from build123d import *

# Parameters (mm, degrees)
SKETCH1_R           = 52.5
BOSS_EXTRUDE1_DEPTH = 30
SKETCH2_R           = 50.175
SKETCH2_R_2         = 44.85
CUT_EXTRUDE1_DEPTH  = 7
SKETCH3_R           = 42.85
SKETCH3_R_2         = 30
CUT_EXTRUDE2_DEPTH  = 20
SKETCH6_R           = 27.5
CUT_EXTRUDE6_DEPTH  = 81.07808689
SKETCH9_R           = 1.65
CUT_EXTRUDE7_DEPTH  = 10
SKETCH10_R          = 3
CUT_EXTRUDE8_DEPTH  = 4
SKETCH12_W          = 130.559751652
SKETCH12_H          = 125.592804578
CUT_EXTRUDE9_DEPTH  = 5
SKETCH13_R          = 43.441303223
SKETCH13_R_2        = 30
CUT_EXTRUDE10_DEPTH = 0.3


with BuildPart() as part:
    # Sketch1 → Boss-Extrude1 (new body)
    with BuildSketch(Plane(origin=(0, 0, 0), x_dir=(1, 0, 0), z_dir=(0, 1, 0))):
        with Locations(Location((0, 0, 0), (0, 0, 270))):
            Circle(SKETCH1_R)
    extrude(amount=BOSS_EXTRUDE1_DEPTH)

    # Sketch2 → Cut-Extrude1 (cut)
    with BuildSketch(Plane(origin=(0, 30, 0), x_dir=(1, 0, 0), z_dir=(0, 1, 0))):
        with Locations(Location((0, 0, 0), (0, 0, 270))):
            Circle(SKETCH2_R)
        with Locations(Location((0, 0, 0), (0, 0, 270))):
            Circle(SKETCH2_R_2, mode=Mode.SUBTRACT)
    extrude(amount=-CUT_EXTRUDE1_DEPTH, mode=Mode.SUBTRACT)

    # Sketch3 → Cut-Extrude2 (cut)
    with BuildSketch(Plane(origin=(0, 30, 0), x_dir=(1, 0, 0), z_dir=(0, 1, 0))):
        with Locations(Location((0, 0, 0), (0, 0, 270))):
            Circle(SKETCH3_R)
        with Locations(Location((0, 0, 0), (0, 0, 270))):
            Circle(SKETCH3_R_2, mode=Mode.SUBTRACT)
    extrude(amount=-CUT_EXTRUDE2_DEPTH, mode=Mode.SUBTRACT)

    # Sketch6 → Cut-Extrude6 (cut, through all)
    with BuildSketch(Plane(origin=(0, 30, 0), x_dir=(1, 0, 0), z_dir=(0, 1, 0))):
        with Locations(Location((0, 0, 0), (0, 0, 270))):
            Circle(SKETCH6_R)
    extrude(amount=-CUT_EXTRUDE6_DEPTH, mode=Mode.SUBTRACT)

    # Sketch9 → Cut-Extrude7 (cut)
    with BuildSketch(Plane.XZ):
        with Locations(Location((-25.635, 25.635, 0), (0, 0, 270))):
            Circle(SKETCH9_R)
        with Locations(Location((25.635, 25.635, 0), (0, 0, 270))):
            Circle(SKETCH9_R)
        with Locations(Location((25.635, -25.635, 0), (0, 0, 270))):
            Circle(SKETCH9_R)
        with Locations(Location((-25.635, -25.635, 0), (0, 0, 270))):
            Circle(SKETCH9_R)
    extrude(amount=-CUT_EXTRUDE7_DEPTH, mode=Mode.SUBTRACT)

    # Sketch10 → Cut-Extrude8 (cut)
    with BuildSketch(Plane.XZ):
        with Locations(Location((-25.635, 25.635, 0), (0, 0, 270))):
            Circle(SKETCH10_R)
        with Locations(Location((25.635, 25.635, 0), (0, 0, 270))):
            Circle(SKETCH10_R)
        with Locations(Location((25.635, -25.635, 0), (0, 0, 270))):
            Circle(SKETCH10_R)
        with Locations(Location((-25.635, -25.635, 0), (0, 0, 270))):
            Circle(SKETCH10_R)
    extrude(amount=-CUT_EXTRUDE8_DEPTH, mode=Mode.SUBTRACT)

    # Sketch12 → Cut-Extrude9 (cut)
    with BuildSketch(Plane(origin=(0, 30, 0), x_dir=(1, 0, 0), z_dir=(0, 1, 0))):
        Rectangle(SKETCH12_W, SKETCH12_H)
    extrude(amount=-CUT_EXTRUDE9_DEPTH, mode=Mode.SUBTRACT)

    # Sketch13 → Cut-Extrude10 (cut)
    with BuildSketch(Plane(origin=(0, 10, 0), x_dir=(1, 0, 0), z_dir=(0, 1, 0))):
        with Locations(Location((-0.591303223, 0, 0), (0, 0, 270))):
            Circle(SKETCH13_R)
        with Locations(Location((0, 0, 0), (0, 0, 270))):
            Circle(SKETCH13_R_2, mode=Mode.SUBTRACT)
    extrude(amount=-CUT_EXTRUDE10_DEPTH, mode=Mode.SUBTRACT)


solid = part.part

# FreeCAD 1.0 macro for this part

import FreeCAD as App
import Part
import Sketcher

V = App.Vector


def add_polygon(sketch, points):
    """Adds a closed chain of lines whose ends are joined by coincident constraints."""
    first, n = sketch.GeometryCount, len(points)
    for a, b in zip(points, points[1:] + points[:1]):
        sketch.addGeometry(Part.LineSegment(App.Vector(*a, 0), App.Vector(*b, 0)), False)
    for i in range(n):
        sketch.addConstraint(Sketcher.Constraint("Coincident", first + i, 2, first + (i + 1) % n, 1))

doc = App.newDocument("Part")
body = doc.addObject("PartDesign::Body", "Body")

# Sketch on XZ plane
sketch1 = body.newObject("Sketcher::SketchObject", "Sketch")
sketch1.AttachmentSupport = (doc.getObject("XZ_Plane"), [""])
sketch1.MapMode = "FlatFace"
sketch1.addGeometry(Part.Circle(V(0, 0, 0), V(0, 0, 1), 52), False)
sketch1.addConstraint([
    Sketcher.Constraint("Coincident", 0, 3, -1, 1),
    Sketcher.Constraint("Diameter", 0, 105.0),
])
pad1 = body.newObject("PartDesign::Pad", "Pad")
pad1.Profile = sketch1
pad1.Length = 30
pad1.Reversed = True

# Sketch on XZ plane
sketch2 = body.newObject("Sketcher::SketchObject", "Sketch001")
sketch2.AttachmentSupport = (doc.getObject("XZ_Plane"), [""])
sketch2.MapMode = "FlatFace"
sketch2.AttachmentOffset = App.Placement(V(0, 0, -30), App.Rotation())
sketch2.addGeometry([
    Part.Circle(V(0, 0, 0), V(0, 0, 1), 50),
    Part.Circle(V(0, 0, 0), V(0, 0, 1), 45),
], False)
sketch2.addConstraint([
    Sketcher.Constraint("Coincident", 0, 3, -1, 1),
    Sketcher.Constraint("Coincident", 1, 3, -1, 1),
    Sketcher.Constraint("Diameter", 1, 89.7),
    Sketcher.Constraint("Diameter", 0, 100.35),
])
pocket1 = body.newObject("PartDesign::Pocket", "Pocket")
pocket1.Profile = sketch2
pocket1.Length = 7
pocket1.Reversed = True

# Sketch on XZ plane
sketch3 = body.newObject("Sketcher::SketchObject", "Sketch002")
sketch3.AttachmentSupport = (doc.getObject("XZ_Plane"), [""])
sketch3.MapMode = "FlatFace"
sketch3.AttachmentOffset = App.Placement(V(0, 0, -30), App.Rotation())
sketch3.addGeometry([
    Part.Circle(V(0, 0, 0), V(0, 0, 1), 43),
    Part.Circle(V(0, 0, 0), V(0, 0, 1), 30),
], False)
sketch3.addConstraint([
    Sketcher.Constraint("Coincident", 0, 3, -1, 1),
    Sketcher.Constraint("Coincident", 1, 3, -1, 1),
    Sketcher.Constraint("Diameter", 1, 60.0),
    Sketcher.Constraint("Diameter", 0, 85.7),
])
pocket2 = body.newObject("PartDesign::Pocket", "Pocket001")
pocket2.Profile = sketch3
pocket2.Length = 20
pocket2.Reversed = True

# Sketch on XZ plane
sketch4 = body.newObject("Sketcher::SketchObject", "Sketch003")
sketch4.AttachmentSupport = (doc.getObject("XZ_Plane"), [""])
sketch4.MapMode = "FlatFace"
sketch4.AttachmentOffset = App.Placement(V(0, 0, -30), App.Rotation())
sketch4.addGeometry(Part.Circle(V(0, 0, 0), V(0, 0, 1), 28), False)
sketch4.addConstraint([
    Sketcher.Constraint("Coincident", 0, 3, -1, 1),
    Sketcher.Constraint("Diameter", 0, 55.0),
])
pocket3 = body.newObject("PartDesign::Pocket", "Pocket002")
pocket3.Profile = sketch4
pocket3.Type = "ThroughAll"
pocket3.Reversed = True

# Sketch on XZ plane
sketch5 = body.newObject("Sketcher::SketchObject", "Sketch004")
sketch5.AttachmentSupport = (doc.getObject("XZ_Plane"), [""])
sketch5.MapMode = "FlatFace"
sketch5.addGeometry([
    Part.Circle(V(-25.6, 25.6, 0), V(0, 0, 1), 1.6),
    Part.Circle(V(25.6, 25.6, 0), V(0, 0, 1), 1.6),
    Part.Circle(V(25.6, -25.6, 0), V(0, 0, 1), 1.6),
    Part.Circle(V(-25.6, -25.6, 0), V(0, 0, 1), 1.6),
], False)
sketch5.addConstraint([
    Sketcher.Constraint("Equal", 0, 1),
    Sketcher.Constraint("Equal", 1, 2),
    Sketcher.Constraint("Equal", 2, 3),
    Sketcher.Constraint("Symmetric", 0, 3, 2, 3, -1, 1),
    Sketcher.Constraint("Symmetric", 1, 3, 3, 3, -1, 1),
    Sketcher.Constraint("Symmetric", 0, 3, 1, 3, -2),
    Sketcher.Constraint("Diameter", 0, 3.3),
    Sketcher.Constraint("DistanceX", 0, 3, 1, 3, 51.27),
    Sketcher.Constraint("DistanceY", 2, 3, 1, 3, 51.27),
])
pocket4 = body.newObject("PartDesign::Pocket", "Pocket003")
pocket4.Profile = sketch5
pocket4.Length = 10

# Sketch on XZ plane
sketch6 = body.newObject("Sketcher::SketchObject", "Sketch005")
sketch6.AttachmentSupport = (doc.getObject("XZ_Plane"), [""])
sketch6.MapMode = "FlatFace"
sketch6.addGeometry([
    Part.Circle(V(-25.6, 25.6, 0), V(0, 0, 1), 3),
    Part.Circle(V(25.6, 25.6, 0), V(0, 0, 1), 3),
    Part.Circle(V(25.6, -25.6, 0), V(0, 0, 1), 3),
    Part.Circle(V(-25.6, -25.6, 0), V(0, 0, 1), 3),
], False)
sketch6.addConstraint([
    Sketcher.Constraint("Equal", 0, 1),
    Sketcher.Constraint("Equal", 1, 2),
    Sketcher.Constraint("Equal", 2, 3),
    Sketcher.Constraint("Symmetric", 0, 3, 2, 3, -1, 1),
    Sketcher.Constraint("Symmetric", 1, 3, 3, 3, -1, 1),
    Sketcher.Constraint("Symmetric", 0, 3, 1, 3, -2),
    Sketcher.Constraint("Diameter", 0, 6.0),
    Sketcher.Constraint("DistanceX", 0, 3, 1, 3, 51.27),
    Sketcher.Constraint("DistanceY", 2, 3, 1, 3, 51.27),
])
pocket5 = body.newObject("PartDesign::Pocket", "Pocket004")
pocket5.Profile = sketch6
pocket5.Length = 4

# Sketch on XZ plane
sketch7 = body.newObject("Sketcher::SketchObject", "Sketch006")
sketch7.AttachmentSupport = (doc.getObject("XZ_Plane"), [""])
sketch7.MapMode = "FlatFace"
sketch7.AttachmentOffset = App.Placement(V(0, 0, -30), App.Rotation())
add_polygon(sketch7, [(-65, -63), (-65, 63), (65, 63), (65, -63)])  # lines 0-3
sketch7.addConstraint([
    Sketcher.Constraint("Vertical", 0),
    Sketcher.Constraint("Horizontal", 1),
    Sketcher.Constraint("Vertical", 2),
    Sketcher.Constraint("Horizontal", 3),
    Sketcher.Constraint("Symmetric", 0, 2, 2, 2, -1, 1),
    Sketcher.Constraint("DistanceX", 1, 1, 1, 2, 130.559752),
    Sketcher.Constraint("DistanceY", 0, 1, 0, 2, 125.592805),
])
pocket6 = body.newObject("PartDesign::Pocket", "Pocket005")
pocket6.Profile = sketch7
pocket6.Length = 5
pocket6.Reversed = True

# Sketch on XZ plane
sketch8 = body.newObject("Sketcher::SketchObject", "Sketch007")
sketch8.AttachmentSupport = (doc.getObject("XZ_Plane"), [""])
sketch8.MapMode = "FlatFace"
sketch8.AttachmentOffset = App.Placement(V(0, 0, -10), App.Rotation())
sketch8.addGeometry([
    Part.Circle(V(-1, 0, 0), V(0, 0, 1), 43),
    Part.Circle(V(0, 0, 0), V(0, 0, 1), 30),
], False)
sketch8.addConstraint([
    Sketcher.Constraint("Coincident", 1, 3, -1, 1),
    Sketcher.Constraint("PointOnObject", 0, 3, -1),
    Sketcher.Constraint("Diameter", 1, 60.0),
    Sketcher.Constraint("Diameter", 0, 86.882606),
    Sketcher.Constraint("DistanceX", 0, 3, -1, 1, 0.591303),
])
pocket7 = body.newObject("PartDesign::Pocket", "Pocket006")
pocket7.Profile = sketch8
pocket7.Length = 0.3
pocket7.Reversed = True

doc.recompute()
